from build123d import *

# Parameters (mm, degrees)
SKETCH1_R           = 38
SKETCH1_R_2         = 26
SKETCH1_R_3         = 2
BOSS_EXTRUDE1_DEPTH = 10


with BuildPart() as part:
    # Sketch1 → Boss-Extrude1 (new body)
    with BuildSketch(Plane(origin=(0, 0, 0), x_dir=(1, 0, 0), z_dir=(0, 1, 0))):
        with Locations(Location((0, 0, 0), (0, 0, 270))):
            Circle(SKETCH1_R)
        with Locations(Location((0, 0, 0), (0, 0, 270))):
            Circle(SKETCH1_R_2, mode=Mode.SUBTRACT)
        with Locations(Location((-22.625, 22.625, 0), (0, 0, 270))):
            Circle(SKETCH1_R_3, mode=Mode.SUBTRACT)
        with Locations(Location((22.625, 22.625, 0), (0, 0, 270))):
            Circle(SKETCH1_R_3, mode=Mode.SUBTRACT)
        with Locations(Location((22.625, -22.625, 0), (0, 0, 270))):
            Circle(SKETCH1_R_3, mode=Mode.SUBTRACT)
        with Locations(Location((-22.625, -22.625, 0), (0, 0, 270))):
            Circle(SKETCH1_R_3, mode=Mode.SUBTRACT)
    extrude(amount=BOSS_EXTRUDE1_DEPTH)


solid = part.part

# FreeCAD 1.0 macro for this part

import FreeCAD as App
import Part
import Sketcher
Q = App.Units.Quantity

doc = App.newDocument("Part")
body = doc.addObject("PartDesign::Body", "Body")

# Sketch on XZ plane
sketch1 = body.newObject("Sketcher::SketchObject", "Sketch")
sketch1.AttachmentSupport = (doc.getObject("XZ_Plane"), [""])
sketch1.MapMode = "FlatFace"
sketch1.addGeometry([
    Part.Circle(App.Vector(0, 0, 0), App.Vector(0, 0, 1), 38),  # 0
    Part.Circle(App.Vector(-22.6, -22.6, 0), App.Vector(0, 0, 1), 2),  # 1
    Part.Circle(App.Vector(-22.6, 22.6, 0), App.Vector(0, 0, 1), 2),  # 2
    Part.Circle(App.Vector(22.6, -22.6, 0), App.Vector(0, 0, 1), 2),  # 3
    Part.Circle(App.Vector(0, 0, 0), App.Vector(0, 0, 1), 26),  # 4
    Part.Circle(App.Vector(22.6, 22.6, 0), App.Vector(0, 0, 1), 2),  # 5
], False)
sketch1.addConstraint([
    Sketcher.Constraint("Coincident", 0, 3, -1, 1),
    Sketcher.Constraint("Coincident", 4, 3, -1, 1),
    Sketcher.Constraint("Equal", 1, 2),
    Sketcher.Constraint("Equal", 2, 3),
    Sketcher.Constraint("Equal", 3, 5),
    Sketcher.Constraint("Symmetric", 2, 3, 3, 3, -1, 1),
    Sketcher.Constraint("Symmetric", 1, 3, 5, 3, -1, 1),
    Sketcher.Constraint("Symmetric", 1, 3, 3, 3, -2),
    Sketcher.Constraint("Diameter", 0, Q("76 mm")),
    Sketcher.Constraint("Diameter", 1, Q("4 mm")),
    Sketcher.Constraint("Diameter", 4, Q("52 mm")),
    Sketcher.Constraint("DistanceY", 1, 3, 2, 3, Q("45.25 mm")),
    Sketcher.Constraint("DistanceX", 1, 3, 3, 3, Q("45.25 mm")),
])
pad1 = body.newObject("PartDesign::Pad", "Pad")
pad1.Profile = sketch1
pad1.Length = 10
pad1.Reversed = True

doc.recompute()
